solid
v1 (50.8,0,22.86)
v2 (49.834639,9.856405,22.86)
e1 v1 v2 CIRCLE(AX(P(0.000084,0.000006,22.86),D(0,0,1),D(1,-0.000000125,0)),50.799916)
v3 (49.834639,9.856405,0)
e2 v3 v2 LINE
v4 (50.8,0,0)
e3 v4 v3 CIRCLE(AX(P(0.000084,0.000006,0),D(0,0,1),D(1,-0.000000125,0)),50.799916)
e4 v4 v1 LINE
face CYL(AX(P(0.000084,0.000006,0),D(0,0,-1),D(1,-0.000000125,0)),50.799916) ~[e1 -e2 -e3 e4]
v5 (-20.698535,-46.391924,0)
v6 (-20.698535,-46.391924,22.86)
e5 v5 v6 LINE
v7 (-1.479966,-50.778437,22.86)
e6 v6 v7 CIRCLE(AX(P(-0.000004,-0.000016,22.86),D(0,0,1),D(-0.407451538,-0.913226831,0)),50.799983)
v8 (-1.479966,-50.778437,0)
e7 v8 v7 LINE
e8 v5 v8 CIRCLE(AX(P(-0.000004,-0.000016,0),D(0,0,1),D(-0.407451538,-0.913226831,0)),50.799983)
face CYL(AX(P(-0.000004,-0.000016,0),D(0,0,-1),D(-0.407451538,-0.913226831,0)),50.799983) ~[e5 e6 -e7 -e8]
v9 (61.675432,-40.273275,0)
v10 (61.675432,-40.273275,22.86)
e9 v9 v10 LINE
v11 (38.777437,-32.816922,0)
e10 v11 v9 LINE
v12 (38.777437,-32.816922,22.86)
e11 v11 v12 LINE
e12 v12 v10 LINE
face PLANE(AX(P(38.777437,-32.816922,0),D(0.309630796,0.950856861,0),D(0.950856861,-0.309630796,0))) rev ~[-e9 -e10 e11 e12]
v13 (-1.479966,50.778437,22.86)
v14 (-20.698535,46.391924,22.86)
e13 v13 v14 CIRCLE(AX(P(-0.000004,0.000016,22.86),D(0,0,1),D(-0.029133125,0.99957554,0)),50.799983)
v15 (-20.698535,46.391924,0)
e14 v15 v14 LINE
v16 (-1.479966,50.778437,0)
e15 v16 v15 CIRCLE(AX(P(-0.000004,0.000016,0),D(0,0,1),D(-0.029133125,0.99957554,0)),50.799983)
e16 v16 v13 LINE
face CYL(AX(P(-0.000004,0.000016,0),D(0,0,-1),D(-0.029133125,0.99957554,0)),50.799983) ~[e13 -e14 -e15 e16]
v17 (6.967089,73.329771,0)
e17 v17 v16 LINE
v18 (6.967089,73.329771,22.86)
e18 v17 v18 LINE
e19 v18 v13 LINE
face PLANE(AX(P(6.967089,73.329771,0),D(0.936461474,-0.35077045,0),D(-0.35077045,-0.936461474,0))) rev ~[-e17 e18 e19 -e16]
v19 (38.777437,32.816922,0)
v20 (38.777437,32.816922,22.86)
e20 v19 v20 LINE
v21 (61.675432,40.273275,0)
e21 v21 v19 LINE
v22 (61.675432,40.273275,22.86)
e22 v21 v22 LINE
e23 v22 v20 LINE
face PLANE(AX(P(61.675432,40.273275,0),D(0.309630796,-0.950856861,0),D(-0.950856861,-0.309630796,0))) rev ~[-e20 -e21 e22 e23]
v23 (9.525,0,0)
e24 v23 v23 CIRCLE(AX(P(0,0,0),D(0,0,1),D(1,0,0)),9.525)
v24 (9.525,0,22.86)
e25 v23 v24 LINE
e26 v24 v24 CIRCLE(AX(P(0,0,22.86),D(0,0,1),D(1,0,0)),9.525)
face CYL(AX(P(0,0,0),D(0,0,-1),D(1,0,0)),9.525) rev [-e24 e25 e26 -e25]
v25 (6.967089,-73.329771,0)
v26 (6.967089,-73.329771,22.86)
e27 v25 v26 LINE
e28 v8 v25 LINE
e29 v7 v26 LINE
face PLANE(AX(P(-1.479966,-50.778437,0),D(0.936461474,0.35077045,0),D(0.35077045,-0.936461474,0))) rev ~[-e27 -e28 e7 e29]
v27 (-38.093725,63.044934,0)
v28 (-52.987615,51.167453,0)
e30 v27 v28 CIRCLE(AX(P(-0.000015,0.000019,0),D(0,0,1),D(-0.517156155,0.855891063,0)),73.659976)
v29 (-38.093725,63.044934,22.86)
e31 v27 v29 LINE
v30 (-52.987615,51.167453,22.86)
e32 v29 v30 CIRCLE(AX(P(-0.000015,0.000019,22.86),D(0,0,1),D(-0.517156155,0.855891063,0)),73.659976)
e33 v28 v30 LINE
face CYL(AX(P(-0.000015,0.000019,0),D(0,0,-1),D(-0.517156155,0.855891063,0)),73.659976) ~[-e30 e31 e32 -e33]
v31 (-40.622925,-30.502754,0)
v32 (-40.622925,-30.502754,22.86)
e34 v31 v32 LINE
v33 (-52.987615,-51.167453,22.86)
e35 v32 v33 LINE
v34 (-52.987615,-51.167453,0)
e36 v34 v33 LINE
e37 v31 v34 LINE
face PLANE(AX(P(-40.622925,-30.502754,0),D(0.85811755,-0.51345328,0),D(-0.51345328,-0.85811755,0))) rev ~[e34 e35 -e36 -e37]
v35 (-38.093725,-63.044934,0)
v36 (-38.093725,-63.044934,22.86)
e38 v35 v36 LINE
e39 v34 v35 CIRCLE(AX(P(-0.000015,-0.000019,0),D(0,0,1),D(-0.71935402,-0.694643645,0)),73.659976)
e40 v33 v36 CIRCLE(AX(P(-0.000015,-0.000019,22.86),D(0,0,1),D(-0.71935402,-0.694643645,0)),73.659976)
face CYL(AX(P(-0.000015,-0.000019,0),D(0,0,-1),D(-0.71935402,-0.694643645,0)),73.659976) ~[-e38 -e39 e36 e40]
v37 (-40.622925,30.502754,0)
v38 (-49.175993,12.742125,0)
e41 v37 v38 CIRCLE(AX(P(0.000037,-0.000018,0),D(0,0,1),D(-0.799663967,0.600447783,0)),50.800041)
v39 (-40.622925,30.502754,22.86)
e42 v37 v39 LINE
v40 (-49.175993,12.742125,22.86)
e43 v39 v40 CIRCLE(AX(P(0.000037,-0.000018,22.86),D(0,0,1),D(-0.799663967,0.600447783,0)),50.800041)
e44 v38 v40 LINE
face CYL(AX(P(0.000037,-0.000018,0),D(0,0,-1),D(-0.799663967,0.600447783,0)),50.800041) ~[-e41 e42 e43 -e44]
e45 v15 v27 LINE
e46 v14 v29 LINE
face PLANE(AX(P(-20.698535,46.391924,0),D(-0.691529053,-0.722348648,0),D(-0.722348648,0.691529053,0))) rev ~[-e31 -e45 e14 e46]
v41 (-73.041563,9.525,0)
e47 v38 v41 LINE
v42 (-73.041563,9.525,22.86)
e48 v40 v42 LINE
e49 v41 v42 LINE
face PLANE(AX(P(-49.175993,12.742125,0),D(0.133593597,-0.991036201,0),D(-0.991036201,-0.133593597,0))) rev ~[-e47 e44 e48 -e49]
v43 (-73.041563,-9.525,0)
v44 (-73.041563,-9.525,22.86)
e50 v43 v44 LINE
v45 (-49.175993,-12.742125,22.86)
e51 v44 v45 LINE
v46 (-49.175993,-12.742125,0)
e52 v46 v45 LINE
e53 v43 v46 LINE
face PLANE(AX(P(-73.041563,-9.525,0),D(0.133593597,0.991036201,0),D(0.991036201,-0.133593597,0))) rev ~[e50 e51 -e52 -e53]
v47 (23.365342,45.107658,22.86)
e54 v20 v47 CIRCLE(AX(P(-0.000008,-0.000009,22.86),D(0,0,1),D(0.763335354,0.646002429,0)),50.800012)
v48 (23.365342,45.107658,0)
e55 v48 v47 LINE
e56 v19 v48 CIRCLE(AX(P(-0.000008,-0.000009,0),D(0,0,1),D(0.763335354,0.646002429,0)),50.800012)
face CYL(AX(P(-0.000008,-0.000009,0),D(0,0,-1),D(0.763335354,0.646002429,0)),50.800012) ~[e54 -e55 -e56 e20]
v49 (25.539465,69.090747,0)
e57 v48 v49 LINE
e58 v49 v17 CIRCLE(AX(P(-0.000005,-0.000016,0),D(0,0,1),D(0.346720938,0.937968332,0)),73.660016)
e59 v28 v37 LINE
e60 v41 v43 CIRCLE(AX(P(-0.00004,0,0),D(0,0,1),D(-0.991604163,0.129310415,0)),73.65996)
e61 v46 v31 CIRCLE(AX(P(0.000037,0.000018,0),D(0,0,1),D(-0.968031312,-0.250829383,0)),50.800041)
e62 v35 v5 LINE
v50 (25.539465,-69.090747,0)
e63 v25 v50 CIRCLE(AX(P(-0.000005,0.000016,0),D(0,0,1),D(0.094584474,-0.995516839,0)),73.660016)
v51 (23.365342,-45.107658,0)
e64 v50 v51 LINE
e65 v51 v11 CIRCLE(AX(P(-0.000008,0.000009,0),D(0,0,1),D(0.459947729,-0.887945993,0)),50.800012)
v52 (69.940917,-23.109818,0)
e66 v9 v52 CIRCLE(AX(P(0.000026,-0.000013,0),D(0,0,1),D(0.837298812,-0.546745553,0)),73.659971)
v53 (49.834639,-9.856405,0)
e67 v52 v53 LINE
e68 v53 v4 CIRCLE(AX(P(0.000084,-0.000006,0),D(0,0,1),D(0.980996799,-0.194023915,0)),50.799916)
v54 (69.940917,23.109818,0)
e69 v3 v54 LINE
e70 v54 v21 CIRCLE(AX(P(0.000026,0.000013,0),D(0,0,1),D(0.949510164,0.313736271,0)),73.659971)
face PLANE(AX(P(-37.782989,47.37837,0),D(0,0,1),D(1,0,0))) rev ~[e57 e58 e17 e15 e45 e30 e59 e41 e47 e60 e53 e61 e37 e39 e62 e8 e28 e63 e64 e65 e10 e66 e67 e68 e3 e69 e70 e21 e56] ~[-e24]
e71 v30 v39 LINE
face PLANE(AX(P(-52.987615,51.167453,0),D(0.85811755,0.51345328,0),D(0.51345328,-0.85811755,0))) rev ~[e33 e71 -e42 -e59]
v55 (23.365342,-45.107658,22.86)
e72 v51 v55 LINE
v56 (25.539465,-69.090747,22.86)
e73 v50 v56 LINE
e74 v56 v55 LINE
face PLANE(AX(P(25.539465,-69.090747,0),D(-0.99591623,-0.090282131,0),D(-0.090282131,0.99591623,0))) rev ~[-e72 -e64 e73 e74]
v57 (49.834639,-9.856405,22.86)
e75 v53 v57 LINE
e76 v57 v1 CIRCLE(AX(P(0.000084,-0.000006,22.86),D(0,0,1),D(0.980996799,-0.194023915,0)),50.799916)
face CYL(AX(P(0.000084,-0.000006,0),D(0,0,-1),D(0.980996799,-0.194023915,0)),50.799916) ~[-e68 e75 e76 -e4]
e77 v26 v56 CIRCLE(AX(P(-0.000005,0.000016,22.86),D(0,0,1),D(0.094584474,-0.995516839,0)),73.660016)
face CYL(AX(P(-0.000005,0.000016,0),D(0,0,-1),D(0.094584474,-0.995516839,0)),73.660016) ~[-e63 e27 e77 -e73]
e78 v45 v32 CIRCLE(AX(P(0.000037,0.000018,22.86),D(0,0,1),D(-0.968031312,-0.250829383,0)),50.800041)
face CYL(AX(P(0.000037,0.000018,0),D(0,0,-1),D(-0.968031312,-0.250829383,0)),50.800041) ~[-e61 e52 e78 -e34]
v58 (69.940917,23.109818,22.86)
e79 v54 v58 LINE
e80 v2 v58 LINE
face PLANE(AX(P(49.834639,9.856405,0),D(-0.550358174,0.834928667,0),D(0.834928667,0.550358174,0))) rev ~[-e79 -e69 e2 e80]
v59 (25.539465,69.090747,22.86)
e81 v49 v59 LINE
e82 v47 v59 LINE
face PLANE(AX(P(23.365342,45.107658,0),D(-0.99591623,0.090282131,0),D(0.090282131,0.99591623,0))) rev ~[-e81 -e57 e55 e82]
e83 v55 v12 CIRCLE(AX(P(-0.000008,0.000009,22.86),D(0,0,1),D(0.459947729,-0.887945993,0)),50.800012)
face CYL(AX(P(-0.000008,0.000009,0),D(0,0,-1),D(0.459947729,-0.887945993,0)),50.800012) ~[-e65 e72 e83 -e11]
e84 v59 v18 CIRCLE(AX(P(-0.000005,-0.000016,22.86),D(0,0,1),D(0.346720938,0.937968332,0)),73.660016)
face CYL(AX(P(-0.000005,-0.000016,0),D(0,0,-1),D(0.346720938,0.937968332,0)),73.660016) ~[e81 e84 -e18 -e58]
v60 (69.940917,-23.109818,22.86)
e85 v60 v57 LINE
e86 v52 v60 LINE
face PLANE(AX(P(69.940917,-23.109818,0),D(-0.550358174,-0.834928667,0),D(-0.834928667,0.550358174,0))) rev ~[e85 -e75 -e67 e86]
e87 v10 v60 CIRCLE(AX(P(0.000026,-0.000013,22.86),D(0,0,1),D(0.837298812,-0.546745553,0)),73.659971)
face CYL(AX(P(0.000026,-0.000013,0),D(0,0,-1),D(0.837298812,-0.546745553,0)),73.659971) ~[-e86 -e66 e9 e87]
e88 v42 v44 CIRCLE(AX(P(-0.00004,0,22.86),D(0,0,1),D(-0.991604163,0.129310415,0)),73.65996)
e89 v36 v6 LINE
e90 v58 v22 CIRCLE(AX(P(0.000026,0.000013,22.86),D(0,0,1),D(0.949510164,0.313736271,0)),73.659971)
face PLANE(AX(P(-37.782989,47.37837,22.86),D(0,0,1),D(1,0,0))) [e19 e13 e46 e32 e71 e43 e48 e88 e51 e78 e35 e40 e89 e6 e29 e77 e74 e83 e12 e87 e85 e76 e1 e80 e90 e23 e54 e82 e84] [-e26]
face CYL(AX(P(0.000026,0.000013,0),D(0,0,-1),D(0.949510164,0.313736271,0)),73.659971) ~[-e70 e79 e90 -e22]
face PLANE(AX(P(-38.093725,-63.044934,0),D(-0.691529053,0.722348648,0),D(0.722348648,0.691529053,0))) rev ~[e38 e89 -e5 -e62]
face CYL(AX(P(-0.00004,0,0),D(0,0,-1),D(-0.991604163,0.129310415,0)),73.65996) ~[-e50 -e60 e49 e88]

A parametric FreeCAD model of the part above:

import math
import FreeCAD as App
import Part
import Sketcher
from FreeCAD import Vector
Q = App.Units.Quantity

doc = App.newDocument("Part")
body = doc.addObject("PartDesign::Body", "Body")

sketch1 = doc.addObject("Sketcher::SketchObject", "Sketch")
body.addObject(sketch1)
sketch1.AttachmentSupport = (doc.XY_Plane, [""])
sketch1.MapMode = "FlatFace"
sketch1.addGeometry([
    Part.LineSegment(Vector(-20.698535, 46.391924, 0), Vector(-38.093725, 63.044934, 0)),
    Part.ArcOfCircle(Part.Circle(Vector(-0.000015, 0.000019, 0), Vector(0, 0, 1), 73.659976), math.radians(121.141685), math.radians(136.001173)),
    Part.LineSegment(Vector(-52.987615, 51.167453, 0), Vector(-40.622925, 30.502754, 0)),
    Part.ArcOfCircle(Part.Circle(Vector(0.000037, -0.000018, 0), Vector(0, 0, 1), 50.800041), math.radians(143.098026), math.radians(165.473404)),
    Part.LineSegment(Vector(-49.175993, 12.742125, 0), Vector(-73.041563, 9.525, 0)),
    Part.ArcOfCircle(Part.Circle(Vector(-0.00004, 0, 0), Vector(0, 0, 1), 73.65996), math.radians(172.570254), math.radians(187.429746)),
    Part.LineSegment(Vector(-73.041563, -9.525, 0), Vector(-49.175993, -12.742125, 0)),
    Part.ArcOfCircle(Part.Circle(Vector(0.000037, 0.000018, 0), Vector(0, 0, 1), 50.800041), math.radians(-165.473404), math.radians(-143.098026)),
    Part.LineSegment(Vector(-40.622925, -30.502754, 0), Vector(-52.987615, -51.167453, 0)),
    Part.ArcOfCircle(Part.Circle(Vector(-0.000015, -0.000019, 0), Vector(0, 0, 1), 73.659976), math.radians(-136.001173), math.radians(-121.141685)),
    Part.LineSegment(Vector(-38.093725, -63.044934, 0), Vector(-20.698535, -46.391924, 0)),
    Part.ArcOfCircle(Part.Circle(Vector(-0.000004, -0.000016, 0), Vector(0, 0, 1), 50.799983), math.radians(-114.044845), math.radians(-91.669441)),
    Part.LineSegment(Vector(-1.479966, -50.778437, 0), Vector(6.967089, -73.329771, 0)),
    Part.ArcOfCircle(Part.Circle(Vector(-0.000005, 0.000016, 0), Vector(0, 0, 1), 73.660016), math.radians(-84.572596), math.radians(-69.713116)),
    Part.LineSegment(Vector(25.539465, -69.090747, 0), Vector(23.365342, -45.107658, 0)),
    Part.ArcOfCircle(Part.Circle(Vector(-0.000008, 0.000009, 0), Vector(0, 0, 1), 50.800012), math.radians(-62.616265), math.radians(-40.240876)),
    Part.LineSegment(Vector(38.777437, -32.816922, 0), Vector(61.675432, -40.273275, 0)),
    Part.ArcOfCircle(Part.Circle(Vector(0.000026, -0.000013, 0), Vector(0, 0, 1), 73.659971), math.radians(-33.14403), math.radians(-18.28454)),
    Part.LineSegment(Vector(69.940917, -23.109818, 0), Vector(49.834639, -9.856405, 0)),
    Part.ArcOfCircle(Part.Circle(Vector(0.000084, -0.000006, 0), Vector(0, 0, 1), 50.799916), math.radians(-11.187709), math.radians(0.000007)),
    Part.ArcOfCircle(Part.Circle(Vector(0.000084, 0.000006, 0), Vector(0, 0, 1), 50.799916), math.radians(-0.000007), math.radians(11.187709)),
    Part.LineSegment(Vector(49.834639, 9.856405, 0), Vector(69.940917, 23.109818, 0)),
    Part.ArcOfCircle(Part.Circle(Vector(0.000026, 0.000013, 0), Vector(0, 0, 1), 73.659971), math.radians(18.28454), math.radians(33.14403)),
    Part.LineSegment(Vector(61.675432, 40.273275, 0), Vector(38.777437, 32.816922, 0)),
    Part.ArcOfCircle(Part.Circle(Vector(-0.000008, -0.000009, 0), Vector(0, 0, 1), 50.800012), math.radians(40.240876), math.radians(62.616265)),
    Part.LineSegment(Vector(23.365342, 45.107658, 0), Vector(25.539465, 69.090747, 0)),
    Part.ArcOfCircle(Part.Circle(Vector(-0.000005, -0.000016, 0), Vector(0, 0, 1), 73.660016), math.radians(69.713116), math.radians(84.572596)),
    Part.LineSegment(Vector(6.967089, 73.329771, 0), Vector(-1.479966, 50.778437, 0)),
    Part.ArcOfCircle(Part.Circle(Vector(-0.000004, 0.000016, 0), Vector(0, 0, 1), 50.799983), math.radians(91.669441), math.radians(114.044845)),
    Part.Circle(Vector(0, 0, 0), Vector(0, 0, 1), 9.525),
], False)
sketch1.addConstraint([
    Sketcher.Constraint("Coincident", 0, 2, 1, 1),
    Sketcher.Constraint("Coincident", 1, 2, 2, 1),
    Sketcher.Constraint("Coincident", 2, 2, 3, 1),
    Sketcher.Constraint("Coincident", 3, 2, 4, 1),
    Sketcher.Constraint("Coincident", 4, 2, 5, 1),
    Sketcher.Constraint("Coincident", 5, 2, 6, 1),
    Sketcher.Constraint("Coincident", 6, 2, 7, 1),
    Sketcher.Constraint("Coincident", 7, 2, 8, 1),
    Sketcher.Constraint("Coincident", 8, 2, 9, 1),
    Sketcher.Constraint("Coincident", 9, 2, 10, 1),
    Sketcher.Constraint("Coincident", 10, 2, 11, 1),
    Sketcher.Constraint("Coincident", 11, 2, 12, 1),
    Sketcher.Constraint("Coincident", 12, 2, 13, 1),
    Sketcher.Constraint("Coincident", 13, 2, 14, 1),
    Sketcher.Constraint("Coincident", 14, 2, 15, 1),
    Sketcher.Constraint("Coincident", 15, 2, 16, 1),
    Sketcher.Constraint("Coincident", 16, 2, 17, 1),
    Sketcher.Constraint("Coincident", 17, 2, 18, 1),
    Sketcher.Constraint("Coincident", 18, 2, 19, 1),
    Sketcher.Constraint("Tangent", 19, 2, 20, 1),
    Sketcher.Constraint("Coincident", 20, 2, 21, 1),
    Sketcher.Constraint("Coincident", 21, 2, 22, 1),
    Sketcher.Constraint("Coincident", 22, 2, 23, 1),
    Sketcher.Constraint("Coincident", 23, 2, 24, 1),
    Sketcher.Constraint("Coincident", 24, 2, 25, 1),
    Sketcher.Constraint("Coincident", 25, 2, 26, 1),
    Sketcher.Constraint("Coincident", 26, 2, 27, 1),
    Sketcher.Constraint("Coincident", 27, 2, 28, 1),
    Sketcher.Constraint("Coincident", 28, 2, 0, 1),
    Sketcher.Constraint("Coincident", 29, 3, -1, 1),
    Sketcher.Constraint("Coincident", 15, 3, 13, 3),
    Sketcher.Constraint("Coincident", 24, 3, 11, 3),
    Sketcher.Constraint("Coincident", 26, 3, 11, 3),
    Sketcher.Constraint("Coincident", 28, 3, 13, 3),
    Sketcher.Constraint("Equal", 3, 7),
    Sketcher.Constraint("Equal", 1, 9),
    Sketcher.Constraint("Equal", 19, 20),
    Sketcher.Constraint("Equal", 17, 22),
    Sketcher.Constraint("Equal", 15, 24),
    Sketcher.Constraint("Equal", 13, 26),
    Sketcher.Constraint("Equal", 11, 28),
    Sketcher.Constraint("Symmetric", 11, 3, 13, 3, -1, 1),
    Sketcher.Constraint("Symmetric", 3, 3, 7, 3, -1),
    Sketcher.Constraint("Symmetric", 1, 3, 9, 3, -1),
    Sketcher.Constraint("Symmetric", 17, 3, 22, 3, -1),
    Sketcher.Constraint("Symmetric", 4, 2, 5, 2, -1),
    Sketcher.Constraint("Symmetric", 18, 2, 20, 2, -1),
    Sketcher.Constraint("Symmetric", 15, 2, 23, 2, -1),
    Sketcher.Constraint("PointOnObject", 19, 2, -1),
    Sketcher.Constraint("Horizontal", 1, 3, 7, 3),
    Sketcher.Constraint("Horizontal", 3, 3, 11, 3),
    Sketcher.Constraint("Vertical", 3, 2, 6, 2),
    Sketcher.Constraint("Vertical", 2, 2, 7, 2),
    Sketcher.Constraint("Vertical", 1, 2, 8, 2),
    Sketcher.Constraint("Vertical", 0, 2, 9, 2),
    Sketcher.Constraint("Vertical", 17, 2, 21, 2),
    Sketcher.Constraint("Vertical", 16, 2, 22, 2),
    Sketcher.Constraint("Vertical", 14, 2, 24, 2),
    Sketcher.Constraint("Vertical", 13, 2, 25, 2),
    Sketcher.Constraint("Vertical", 12, 2, 26, 2),
    Sketcher.Constraint("Vertical", 11, 2, 27, 2),
    Sketcher.Constraint("Vertical", 10, 2, 28, 2),
    Sketcher.Constraint("Equal", 0, 2),
    Sketcher.Constraint("Equal", 2, 4),
    Sketcher.Constraint("Equal", 10, 12),
    Sketcher.Constraint("Equal", 12, 14),
    Sketcher.Constraint("Equal", 14, 16),
    Sketcher.Constraint("Equal", 16, 18),
    Sketcher.Constraint("Diameter", 29, Q("0.75 in")),
    Sketcher.Constraint("DistanceX", -1, 1, 19, 2, Q("2 in")),
    Sketcher.Constraint("DistanceY", 5, 2, 4, 2, Q("0.75 in")),
    Sketcher.Constraint("Radius", 3, Q("50.800041 mm")),
    Sketcher.Constraint("Radius", 5, Q("73.65996 mm")),
    Sketcher.Constraint("Radius", 17, Q("73.659971 mm")),
    Sketcher.Constraint("Radius", 1, Q("73.659976 mm")),
    Sketcher.Constraint("Radius", 11, Q("50.799983 mm")),
    Sketcher.Constraint("Radius", 13, Q("73.660016 mm")),
    Sketcher.Constraint("Radius", 15, Q("50.800012 mm")),
    Sketcher.Constraint("Radius", 19, Q("50.799916 mm")),
    Sketcher.Constraint("DistanceX", 1, 2, 1, 3, Q("52.9876 mm")),
    Sketcher.Constraint("DistanceY", 2, 2, 1, 2, Q("20.664699 mm")),
    Sketcher.Constraint("DistanceX", 2, 2, 0, 2, Q("2.5292 mm")),
    Sketcher.Constraint("DistanceY", 10, 2, 6, 2, Q("33.649799 mm")),
    Sketcher.Constraint("DistanceX", 10, 2, 13, 2, Q("46.238 mm")),
    Sketcher.Constraint("DistanceX", 11, 2, 16, 2, Q("63.155398 mm")),
    Sketcher.Constraint("DistanceX", 15, 2, 18, 2, Q("11.057202 mm")),
    Sketcher.Constraint("DistanceY", 18, 2, 19, 3, Q("9.856399 mm")),
    Sketcher.Constraint("Distance", 2, Q("24.081432 mm")),
    Sketcher.Constraint("DistanceX", -1, 1, 12, 2, Q("6.967089 mm")),
    Sketcher.Constraint("DistanceY", 12, 2, -1, 1, Q("73.329771 mm")),
    Sketcher.Constraint("DistanceX", -1, 1, 14, 2, Q("23.365342 mm")),
    Sketcher.Constraint("DistanceY", -1, 1, 21, 2, Q("23.109818 mm")),
])
pad1 = doc.addObject("PartDesign::Pad", "Pad")
body.addObject(pad1)
pad1.Profile = sketch1
pad1.Length = Q("0.9 in")

doc.recompute()
